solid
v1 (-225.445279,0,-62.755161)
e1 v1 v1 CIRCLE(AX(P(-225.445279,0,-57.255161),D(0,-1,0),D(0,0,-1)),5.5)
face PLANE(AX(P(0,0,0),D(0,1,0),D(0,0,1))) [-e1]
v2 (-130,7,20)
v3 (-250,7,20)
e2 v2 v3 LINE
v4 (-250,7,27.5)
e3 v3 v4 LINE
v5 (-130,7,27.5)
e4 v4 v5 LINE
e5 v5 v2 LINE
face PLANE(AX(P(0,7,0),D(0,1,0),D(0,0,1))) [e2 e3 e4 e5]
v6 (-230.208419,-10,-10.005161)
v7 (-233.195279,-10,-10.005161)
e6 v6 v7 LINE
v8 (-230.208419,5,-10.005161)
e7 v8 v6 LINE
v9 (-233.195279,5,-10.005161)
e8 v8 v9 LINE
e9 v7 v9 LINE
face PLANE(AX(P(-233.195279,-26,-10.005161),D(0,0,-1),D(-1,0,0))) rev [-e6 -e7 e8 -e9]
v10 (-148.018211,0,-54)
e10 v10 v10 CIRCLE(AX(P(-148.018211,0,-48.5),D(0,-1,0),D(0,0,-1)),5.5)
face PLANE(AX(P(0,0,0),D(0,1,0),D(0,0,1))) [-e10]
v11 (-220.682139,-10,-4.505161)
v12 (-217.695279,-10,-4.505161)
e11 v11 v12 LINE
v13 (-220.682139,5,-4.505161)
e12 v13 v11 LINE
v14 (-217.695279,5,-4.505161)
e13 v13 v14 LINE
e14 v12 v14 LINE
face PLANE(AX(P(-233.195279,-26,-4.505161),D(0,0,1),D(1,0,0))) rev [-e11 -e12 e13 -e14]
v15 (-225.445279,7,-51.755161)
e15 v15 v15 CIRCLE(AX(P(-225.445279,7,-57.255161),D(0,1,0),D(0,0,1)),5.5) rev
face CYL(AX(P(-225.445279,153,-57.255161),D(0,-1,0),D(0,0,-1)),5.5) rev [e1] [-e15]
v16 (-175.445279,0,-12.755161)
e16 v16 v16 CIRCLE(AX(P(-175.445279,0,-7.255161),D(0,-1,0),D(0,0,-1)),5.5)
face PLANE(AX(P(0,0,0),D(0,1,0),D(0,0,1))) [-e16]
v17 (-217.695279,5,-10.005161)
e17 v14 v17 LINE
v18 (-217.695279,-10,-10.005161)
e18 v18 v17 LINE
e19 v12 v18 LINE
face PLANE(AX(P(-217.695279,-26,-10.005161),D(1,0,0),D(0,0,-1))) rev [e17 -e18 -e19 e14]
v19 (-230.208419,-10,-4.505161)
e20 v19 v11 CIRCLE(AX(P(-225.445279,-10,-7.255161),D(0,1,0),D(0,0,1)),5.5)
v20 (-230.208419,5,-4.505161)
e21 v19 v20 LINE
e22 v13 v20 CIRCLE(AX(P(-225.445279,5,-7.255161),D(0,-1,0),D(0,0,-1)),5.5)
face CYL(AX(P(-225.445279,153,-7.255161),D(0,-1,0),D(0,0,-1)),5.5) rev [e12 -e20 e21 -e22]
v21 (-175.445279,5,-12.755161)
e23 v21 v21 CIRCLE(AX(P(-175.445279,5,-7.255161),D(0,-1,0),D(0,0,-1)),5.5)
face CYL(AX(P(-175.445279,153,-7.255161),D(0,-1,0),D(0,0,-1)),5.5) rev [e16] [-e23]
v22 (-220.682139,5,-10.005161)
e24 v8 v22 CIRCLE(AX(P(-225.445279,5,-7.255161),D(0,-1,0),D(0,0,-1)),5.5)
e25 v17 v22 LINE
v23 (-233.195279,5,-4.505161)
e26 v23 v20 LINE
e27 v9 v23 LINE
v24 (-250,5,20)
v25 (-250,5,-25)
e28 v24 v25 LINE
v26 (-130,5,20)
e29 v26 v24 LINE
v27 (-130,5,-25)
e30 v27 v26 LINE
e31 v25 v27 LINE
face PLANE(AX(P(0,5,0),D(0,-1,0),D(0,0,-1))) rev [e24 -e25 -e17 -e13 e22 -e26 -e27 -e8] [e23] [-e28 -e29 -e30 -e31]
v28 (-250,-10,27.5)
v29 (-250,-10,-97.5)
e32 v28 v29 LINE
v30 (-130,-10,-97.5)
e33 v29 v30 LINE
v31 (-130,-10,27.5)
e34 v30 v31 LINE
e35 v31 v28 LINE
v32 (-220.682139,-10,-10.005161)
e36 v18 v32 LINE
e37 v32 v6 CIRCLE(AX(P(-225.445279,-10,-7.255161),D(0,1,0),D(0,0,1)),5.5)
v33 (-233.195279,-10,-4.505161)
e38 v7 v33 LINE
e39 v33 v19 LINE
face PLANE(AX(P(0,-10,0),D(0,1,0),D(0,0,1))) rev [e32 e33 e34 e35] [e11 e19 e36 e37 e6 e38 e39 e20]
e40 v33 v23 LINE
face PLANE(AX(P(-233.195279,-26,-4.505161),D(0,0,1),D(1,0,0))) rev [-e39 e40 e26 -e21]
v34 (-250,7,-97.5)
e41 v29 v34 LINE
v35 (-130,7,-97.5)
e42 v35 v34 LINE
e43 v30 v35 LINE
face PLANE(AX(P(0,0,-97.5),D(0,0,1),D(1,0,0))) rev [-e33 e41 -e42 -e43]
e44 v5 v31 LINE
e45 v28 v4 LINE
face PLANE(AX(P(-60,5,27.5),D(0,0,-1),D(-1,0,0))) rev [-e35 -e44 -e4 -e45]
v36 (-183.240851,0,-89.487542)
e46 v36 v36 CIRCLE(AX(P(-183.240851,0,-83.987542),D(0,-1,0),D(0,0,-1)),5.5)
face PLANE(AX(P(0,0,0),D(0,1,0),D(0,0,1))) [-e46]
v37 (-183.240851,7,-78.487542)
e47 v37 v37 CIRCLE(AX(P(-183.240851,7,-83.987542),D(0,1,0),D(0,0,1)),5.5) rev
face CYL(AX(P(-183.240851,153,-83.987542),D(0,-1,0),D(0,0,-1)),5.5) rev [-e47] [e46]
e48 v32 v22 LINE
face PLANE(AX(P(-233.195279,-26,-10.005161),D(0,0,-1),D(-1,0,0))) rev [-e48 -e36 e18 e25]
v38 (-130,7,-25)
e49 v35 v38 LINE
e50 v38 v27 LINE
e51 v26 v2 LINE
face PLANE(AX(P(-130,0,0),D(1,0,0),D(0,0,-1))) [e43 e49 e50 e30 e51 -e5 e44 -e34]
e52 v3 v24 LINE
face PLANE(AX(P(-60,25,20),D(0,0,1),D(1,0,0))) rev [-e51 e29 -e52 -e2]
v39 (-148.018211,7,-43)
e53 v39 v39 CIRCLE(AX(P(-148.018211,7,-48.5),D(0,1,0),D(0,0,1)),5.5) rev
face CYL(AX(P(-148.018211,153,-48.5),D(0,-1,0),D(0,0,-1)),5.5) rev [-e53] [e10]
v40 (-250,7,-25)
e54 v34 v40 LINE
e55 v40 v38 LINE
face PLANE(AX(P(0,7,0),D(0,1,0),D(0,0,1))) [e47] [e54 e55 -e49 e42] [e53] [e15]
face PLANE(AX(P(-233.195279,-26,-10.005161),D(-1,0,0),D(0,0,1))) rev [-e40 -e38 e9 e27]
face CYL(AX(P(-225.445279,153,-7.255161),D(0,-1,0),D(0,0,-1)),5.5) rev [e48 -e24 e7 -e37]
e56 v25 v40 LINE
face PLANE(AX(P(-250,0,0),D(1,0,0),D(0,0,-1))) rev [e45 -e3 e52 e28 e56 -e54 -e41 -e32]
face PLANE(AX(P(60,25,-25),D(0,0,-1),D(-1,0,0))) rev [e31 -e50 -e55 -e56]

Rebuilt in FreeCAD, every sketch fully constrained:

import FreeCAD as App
import Part
import Sketcher


def add_polygon(sketch, points):
    """Adds a closed chain of lines whose ends are joined by coincident constraints."""
    first, n = sketch.GeometryCount, len(points)
    for a, b in zip(points, points[1:] + points[:1]):
        sketch.addGeometry(Part.LineSegment(App.Vector(*a, 0), App.Vector(*b, 0)), False)
    for i in range(n):
        sketch.addConstraint(Sketcher.Constraint("Coincident", first + i, 2, first + (i + 1) % n, 1))

doc = App.newDocument("Part")
params = doc.addObject("Spreadsheet::Sheet", "Params")
for row, (alias, value) in enumerate([
    ("sketch1_width", "120 mm"),
    ("sketch1_height", "55 mm"),
    ("pad1_length", "5 mm"),
    ("sketch2_width", "120 mm"),
    ("sketch2_height", "7.5 mm"),
    ("pad2_length", "20 mm"),
    ("sketch3_width", "120 mm"),
    ("sketch3_height", "2.5 mm"),
    ("pad3_length", "20 mm"),
    ("sketch4_width", "25 mm"),
    ("sketch4_width2", "20 mm"),
    ("sketch4_height", "55 mm"),
    ("sketch4_height2", "45 mm"),
    ("sketch4_height3", "7.5 mm"),
    ("pad4_length", "190 mm"),
    ("sketch5_width", "310 mm"),
    ("sketch5_height", "25 mm"),
    ("pad5_length", "70 mm"),
    ("sketch6_diameter", "11 mm"),
    ("pocket1_length", "153 mm"),
    ("sketch7_width", "25 mm"),
    ("sketch7_height", "125 mm"),
    ("pocket2_length", "190 mm"),
    ("sketch8_width", "120 mm"),
    ("sketch8_height", "125 mm"),
    ("pad6_length", "10 mm"),
    ("sketch9_width", "120 mm"),
    ("sketch9_height", "125 mm"),
    ("pocket3_length", "18 mm"),
    ("sketch10_diameter", "11 mm"),
    ("pocket4_length", "31 mm"),
    ("sketch11_width", "15.5 mm"),
    ("sketch11_height", "5.5 mm"),
    ("pocket5_length", "31 mm"),
], start=1):
    params.set(f"A{row}", alias)
    params.set(f"B{row}", "=" + value)
    params.setAlias(f"B{row}", alias)

body = doc.addObject("PartDesign::Body", "Body")

sketch1 = doc.addObject("Sketcher::SketchObject", "Sketch")
body.addObject(sketch1)
sketch1.AttachmentSupport = (doc.XZ_Plane, [""])
sketch1.MapMode = "FlatFace"
add_polygon(sketch1, [(-60, -28), (-60, 28), (60, 28), (60, -28)])
sketch1.addConstraint(Sketcher.Constraint("Vertical", 0))
sketch1.addConstraint(Sketcher.Constraint("Horizontal", 1))
sketch1.addConstraint(Sketcher.Constraint("Vertical", 2))
sketch1.addConstraint(Sketcher.Constraint("Horizontal", 3))
sketch1.addConstraint(Sketcher.Constraint("Symmetric", 0, 2, 2, 2, -1, 1))
sketch1.addConstraint(Sketcher.Constraint("DistanceX", 1, 1, 1, 2, 120.0))
sketch1.addConstraint(Sketcher.Constraint("DistanceY", 0, 1, 0, 2, 55.0))
sketch1.setExpression("Constraints[9]", "Params.sketch1_width")
sketch1.setExpression("Constraints[10]", "Params.sketch1_height")
pad1 = doc.addObject("PartDesign::Pad", "Pad")
body.addObject(pad1)
pad1.Profile = sketch1
pad1.setExpression("Length", "Params.pad1_length")
pad1.Reversed = True

sketch2 = doc.addObject("Sketcher::SketchObject", "Sketch001")
body.addObject(sketch2)
sketch2.AttachmentSupport = (doc.XZ_Plane, [""])
sketch2.MapMode = "FlatFace"
sketch2.AttachmentOffset = App.Placement(App.Vector(0, 0, -5), App.Rotation())
add_polygon(sketch2, [(-60, 20), (-60, 28), (60, 28), (60, 20)])
sketch2.addConstraint(Sketcher.Constraint("Vertical", 0))
sketch2.addConstraint(Sketcher.Constraint("Horizontal", 1))
sketch2.addConstraint(Sketcher.Constraint("Vertical", 2))
sketch2.addConstraint(Sketcher.Constraint("Horizontal", 3))
sketch2.addConstraint(Sketcher.Constraint("DistanceX", 1, 1, 1, 2, 120.0))
sketch2.addConstraint(Sketcher.Constraint("DistanceY", 0, 1, 0, 2, 7.5))
sketch2.addConstraint(Sketcher.Constraint("DistanceX", 0, 2, -1, 1, 60.0))
sketch2.addConstraint(Sketcher.Constraint("DistanceY", -1, 1, 2, 2, 20.0))
sketch2.setExpression("Constraints[8]", "Params.sketch2_width")
sketch2.setExpression("Constraints[9]", "Params.sketch2_height")
pad2 = doc.addObject("PartDesign::Pad", "Pad001")
body.addObject(pad2)
pad2.Profile = sketch2
pad2.setExpression("Length", "Params.pad2_length")
pad2.Reversed = True

sketch3 = doc.addObject("Sketcher::SketchObject", "Sketch002")
body.addObject(sketch3)
sketch3.AttachmentSupport = (doc.XZ_Plane, [""])
sketch3.MapMode = "FlatFace"
sketch3.AttachmentOffset = App.Placement(App.Vector(0, 0, -5), App.Rotation())
add_polygon(sketch3, [(-60, -27.5), (-60, -25), (60, -25), (60, -27.5)])
sketch3.addConstraint(Sketcher.Constraint("Vertical", 0))
sketch3.addConstraint(Sketcher.Constraint("Horizontal", 1))
sketch3.addConstraint(Sketcher.Constraint("Vertical", 2))
sketch3.addConstraint(Sketcher.Constraint("Horizontal", 3))
sketch3.addConstraint(Sketcher.Constraint("DistanceX", 1, 1, 1, 2, 120.0))
sketch3.addConstraint(Sketcher.Constraint("DistanceY", 0, 1, 0, 2, 2.5))
sketch3.addConstraint(Sketcher.Constraint("DistanceX", 0, 2, -1, 1, 60.0))
sketch3.addConstraint(Sketcher.Constraint("DistanceY", 0, 2, -1, 1, 25.0))
sketch3.setExpression("Constraints[8]", "Params.sketch3_width")
sketch3.setExpression("Constraints[9]", "Params.sketch3_height")
pad3 = doc.addObject("PartDesign::Pad", "Pad002")
body.addObject(pad3)
pad3.Profile = sketch3
pad3.setExpression("Length", "Params.pad3_length")
pad3.Reversed = True

sketch4 = doc.addObject("Sketcher::SketchObject", "Sketch003")
body.addObject(sketch4)
sketch4.AttachmentSupport = (doc.YZ_Plane, [""])
sketch4.MapMode = "FlatFace"
sketch4.AttachmentOffset = App.Placement(App.Vector(0, 0, -60), App.Rotation())
add_polygon(sketch4, [(25, -27.5), (0, -27.5), (0, 27.5), (25, 27.5), (25, 20), (5, 20), (5, -25), (25, -25)])
sketch4.addConstraint(Sketcher.Constraint("Horizontal", 0))
sketch4.addConstraint(Sketcher.Constraint("Vertical", 1))
sketch4.addConstraint(Sketcher.Constraint("Horizontal", 2))
sketch4.addConstraint(Sketcher.Constraint("Vertical", 3))
sketch4.addConstraint(Sketcher.Constraint("Horizontal", 4))
sketch4.addConstraint(Sketcher.Constraint("Vertical", 5))
sketch4.addConstraint(Sketcher.Constraint("Horizontal", 6))
sketch4.addConstraint(Sketcher.Constraint("Vertical", 7))
sketch4.addConstraint(Sketcher.Constraint("Symmetric", 0, 2, 1, 2, -1, 1))
sketch4.addConstraint(Sketcher.Constraint("Vertical", 3, 2, 6, 2))
sketch4.addConstraint(Sketcher.Constraint("DistanceX", 0, 2, 0, 1, 25.0))
sketch4.addConstraint(Sketcher.Constraint("DistanceX", 4, 2, 4, 1, 20.0))
sketch4.addConstraint(Sketcher.Constraint("DistanceY", 1, 1, 1, 2, 55.0))
sketch4.addConstraint(Sketcher.Constraint("DistanceY", 5, 2, 5, 1, 45.0))
sketch4.addConstraint(Sketcher.Constraint("DistanceY", 3, 2, 3, 1, 7.5))
sketch4.setExpression("Constraints[18]", "Params.sketch4_width")
sketch4.setExpression("Constraints[19]", "Params.sketch4_width2")
sketch4.setExpression("Constraints[20]", "Params.sketch4_height")
sketch4.setExpression("Constraints[21]", "Params.sketch4_height2")
sketch4.setExpression("Constraints[22]", "Params.sketch4_height3")
pad4 = doc.addObject("PartDesign::Pad", "Pad003")
body.addObject(pad4)
pad4.Profile = sketch4
pad4.setExpression("Length", "Params.pad4_length")
pad4.Reversed = True

sketch5 = doc.addObject("Sketcher::SketchObject", "Sketch004")
body.addObject(sketch5)
sketch5.AttachmentSupport = (doc.XY_Plane, [""])
sketch5.MapMode = "FlatFace"
sketch5.AttachmentOffset = App.Placement(App.Vector(0, 0, -27.5), App.Rotation())
add_polygon(sketch5, [(60, 25), (60, 0), (-250, 0), (-250, 25)])
sketch5.addConstraint(Sketcher.Constraint("Vertical", 0))
sketch5.addConstraint(Sketcher.Constraint("Horizontal", 1))
sketch5.addConstraint(Sketcher.Constraint("Vertical", 2))
sketch5.addConstraint(Sketcher.Constraint("Horizontal", 3))
sketch5.addConstraint(Sketcher.Constraint("PointOnObject", 0, 2, -1))
sketch5.addConstraint(Sketcher.Constraint("DistanceX", 1, 2, 1, 1, 310.0))
sketch5.addConstraint(Sketcher.Constraint("DistanceY", 0, 2, 0, 1, 25.0))
sketch5.addConstraint(Sketcher.Constraint("DistanceX", -1, 1, 0, 2, 60.0))
sketch5.setExpression("Constraints[9]", "Params.sketch5_width")
sketch5.setExpression("Constraints[10]", "Params.sketch5_height")
pad5 = doc.addObject("PartDesign::Pad", "Pad004")
body.addObject(pad5)
pad5.Profile = sketch5
pad5.setExpression("Length", "Params.pad5_length")
pad5.Reversed = True

sketch6 = doc.addObject("Sketcher::SketchObject", "Sketch005")
body.addObject(sketch6)
sketch6.AttachmentSupport = (doc.XZ_Plane, [""])
sketch6.MapMode = "FlatFace"
sketch6.addGeometry(Part.Circle(App.Vector(-225, -7, 0), App.Vector(0, 0, 1), 6), False)
sketch6.addGeometry(Part.Circle(App.Vector(-175, -7, 0), App.Vector(0, 0, 1), 6), False)
sketch6.addGeometry(Part.Circle(App.Vector(-225, -57, 0), App.Vector(0, 0, 1), 6), False)
sketch6.addGeometry(Part.Circle(App.Vector(-148, -48, 0), App.Vector(0, 0, 1), 6), False)
sketch6.addGeometry(Part.Circle(App.Vector(-183, -84, 0), App.Vector(0, 0, 1), 6), False)
sketch6.addConstraint(Sketcher.Constraint("Equal", 0, 1))
sketch6.addConstraint(Sketcher.Constraint("Equal", 1, 2))
sketch6.addConstraint(Sketcher.Constraint("Equal", 2, 3))
sketch6.addConstraint(Sketcher.Constraint("Equal", 3, 4))
sketch6.addConstraint(Sketcher.Constraint("Horizontal", 0, 3, 1, 3))
sketch6.addConstraint(Sketcher.Constraint("Vertical", 0, 3, 2, 3))
sketch6.addConstraint(Sketcher.Constraint("Diameter", 0, 11.0))
sketch6.addConstraint(Sketcher.Constraint("DistanceX", 0, 3, 1, 3, 50.0))
sketch6.addConstraint(Sketcher.Constraint("DistanceY", 2, 3, 0, 3, 50.0))
sketch6.addConstraint(Sketcher.Constraint("DistanceY", 3, 3, -1, 1, 48.5))
sketch6.addConstraint(Sketcher.Constraint("DistanceX", 0, 3, -1, 1, 225.445279))
sketch6.addConstraint(Sketcher.Constraint("DistanceY", 0, 3, -1, 1, 7.255161))
sketch6.addConstraint(Sketcher.Constraint("DistanceX", 3, 3, -1, 1, 148.018211))
sketch6.addConstraint(Sketcher.Constraint("DistanceX", 4, 3, -1, 1, 183.240851))
sketch6.addConstraint(Sketcher.Constraint("DistanceY", 4, 3, -1, 1, 83.987542))
sketch6.setExpression("Constraints[6]", "Params.sketch6_diameter")
pocket1 = doc.addObject("PartDesign::Pocket", "Pocket")
body.addObject(pocket1)
pocket1.Profile = sketch6
pocket1.setExpression("Length", "Params.pocket1_length")

sketch7 = doc.addObject("Sketcher::SketchObject", "Sketch006")
body.addObject(sketch7)
sketch7.AttachmentSupport = (doc.YZ_Plane, [""])
sketch7.MapMode = "FlatFace"
sketch7.AttachmentOffset = App.Placement(App.Vector(0, 0, 60), App.Rotation())
add_polygon(sketch7, [(25, 28), (0, 28), (0, -98), (25, -98)])
sketch7.addConstraint(Sketcher.Constraint("Horizontal", 0))
sketch7.addConstraint(Sketcher.Constraint("Vertical", 1))
sketch7.addConstraint(Sketcher.Constraint("Horizontal", 2))
sketch7.addConstraint(Sketcher.Constraint("Vertical", 3))
sketch7.addConstraint(Sketcher.Constraint("PointOnObject", 0, 2, -2))
sketch7.addConstraint(Sketcher.Constraint("DistanceX", 0, 2, 0, 1, 25.0))
sketch7.addConstraint(Sketcher.Constraint("DistanceY", 1, 2, 1, 1, 125.0))
sketch7.addConstraint(Sketcher.Constraint("DistanceY", -1, 1, 0, 2, 27.5))
sketch7.setExpression("Constraints[9]", "Params.sketch7_width")
sketch7.setExpression("Constraints[10]", "Params.sketch7_height")
pocket2 = doc.addObject("PartDesign::Pocket", "Pocket001")
body.addObject(pocket2)
pocket2.Profile = sketch7
pocket2.setExpression("Length", "Params.pocket2_length")

sketch8 = doc.addObject("Sketcher::SketchObject", "Sketch007")
body.addObject(sketch8)
sketch8.AttachmentSupport = (doc.XZ_Plane, [""])
sketch8.MapMode = "FlatFace"
add_polygon(sketch8, [(-130, -98), (-130, 28), (-250, 28), (-250, -98)])
sketch8.addConstraint(Sketcher.Constraint("Vertical", 0))
sketch8.addConstraint(Sketcher.Constraint("Horizontal", 1))
sketch8.addConstraint(Sketcher.Constraint("Vertical", 2))
sketch8.addConstraint(Sketcher.Constraint("Horizontal", 3))
sketch8.addConstraint(Sketcher.Constraint("DistanceX", 1, 2, 1, 1, 120.0))
sketch8.addConstraint(Sketcher.Constraint("DistanceY", 0, 1, 0, 2, 125.0))
sketch8.addConstraint(Sketcher.Constraint("DistanceX", 0, 2, -1, 1, 130.0))
sketch8.addConstraint(Sketcher.Constraint("DistanceY", -1, 1, 0, 2, 27.5))
sketch8.setExpression("Constraints[8]", "Params.sketch8_width")
sketch8.setExpression("Constraints[9]", "Params.sketch8_height")
pad6 = doc.addObject("PartDesign::Pad", "Pad005")
body.addObject(pad6)
pad6.Profile = sketch8
pad6.setExpression("Length", "Params.pad6_length")

sketch9 = doc.addObject("Sketcher::SketchObject", "Sketch008")
body.addObject(sketch9)
sketch9.AttachmentSupport = (doc.XZ_Plane, [""])
sketch9.MapMode = "FlatFace"
sketch9.AttachmentOffset = App.Placement(App.Vector(0, 0, -25), App.Rotation())
add_polygon(sketch9, [(-250, -98), (-250, 28), (-130, 28), (-130, -98)])
sketch9.addConstraint(Sketcher.Constraint("Vertical", 0))
sketch9.addConstraint(Sketcher.Constraint("Horizontal", 1))
sketch9.addConstraint(Sketcher.Constraint("Vertical", 2))
sketch9.addConstraint(Sketcher.Constraint("Horizontal", 3))
sketch9.addConstraint(Sketcher.Constraint("DistanceX", 1, 1, 1, 2, 120.0))
sketch9.addConstraint(Sketcher.Constraint("DistanceY", 0, 1, 0, 2, 125.0))
sketch9.addConstraint(Sketcher.Constraint("DistanceX", 0, 2, -1, 1, 250.0))
sketch9.addConstraint(Sketcher.Constraint("DistanceY", -1, 1, 0, 2, 27.5))
sketch9.setExpression("Constraints[8]", "Params.sketch9_width")
sketch9.setExpression("Constraints[9]", "Params.sketch9_height")
pocket3 = doc.addObject("PartDesign::Pocket", "Pocket002")
body.addObject(pocket3)
pocket3.Profile = sketch9
pocket3.setExpression("Length", "Params.pocket3_length")
pocket3.Reversed = True

sketch10 = doc.addObject("Sketcher::SketchObject", "Sketch009")
body.addObject(sketch10)
sketch10.AttachmentSupport = (doc.XZ_Plane, [""])
sketch10.MapMode = "FlatFace"
sketch10.AttachmentOffset = App.Placement(App.Vector(0, 0, 26), App.Rotation())
sketch10.addGeometry(Part.Circle(App.Vector(-225, -7, 0), App.Vector(0, 0, 1), 6), False)
sketch10.addConstraint(Sketcher.Constraint("Diameter", 0, 11.0))
sketch10.addConstraint(Sketcher.Constraint("DistanceX", 0, 3, -1, 1, 225.445279))
sketch10.addConstraint(Sketcher.Constraint("DistanceY", 0, 3, -1, 1, 7.255161))
sketch10.setExpression("Constraints[0]", "Params.sketch10_diameter")
pocket4 = doc.addObject("PartDesign::Pocket", "Pocket003")
body.addObject(pocket4)
pocket4.Profile = sketch10
pocket4.setExpression("Length", "Params.pocket4_length")

sketch11 = doc.addObject("Sketcher::SketchObject", "Sketch010")
body.addObject(sketch11)
sketch11.AttachmentSupport = (doc.XZ_Plane, [""])
sketch11.MapMode = "FlatFace"
sketch11.AttachmentOffset = App.Placement(App.Vector(0, 0, -5), App.Rotation())
add_polygon(sketch11, [(-233, -10), (-233, -5), (-218, -5), (-218, -10)])
sketch11.addConstraint(Sketcher.Constraint("Vertical", 0))
sketch11.addConstraint(Sketcher.Constraint("Horizontal", 1))
sketch11.addConstraint(Sketcher.Constraint("Vertical", 2))
sketch11.addConstraint(Sketcher.Constraint("Horizontal", 3))
sketch11.addConstraint(Sketcher.Constraint("DistanceX", 1, 1, 1, 2, 15.5))
sketch11.addConstraint(Sketcher.Constraint("DistanceY", 0, 1, 0, 2, 5.5))
sketch11.addConstraint(Sketcher.Constraint("DistanceX", 0, 2, -1, 1, 233.195279))
sketch11.addConstraint(Sketcher.Constraint("DistanceY", 0, 2, -1, 1, 4.505161))
sketch11.setExpression("Constraints[8]", "Params.sketch11_width")
sketch11.setExpression("Constraints[9]", "Params.sketch11_height")
pocket5 = doc.addObject("PartDesign::Pocket", "Pocket004")
body.addObject(pocket5)
pocket5.Profile = sketch11
pocket5.setExpression("Length", "Params.pocket5_length")
pocket5.Reversed = True

doc.recompute()
